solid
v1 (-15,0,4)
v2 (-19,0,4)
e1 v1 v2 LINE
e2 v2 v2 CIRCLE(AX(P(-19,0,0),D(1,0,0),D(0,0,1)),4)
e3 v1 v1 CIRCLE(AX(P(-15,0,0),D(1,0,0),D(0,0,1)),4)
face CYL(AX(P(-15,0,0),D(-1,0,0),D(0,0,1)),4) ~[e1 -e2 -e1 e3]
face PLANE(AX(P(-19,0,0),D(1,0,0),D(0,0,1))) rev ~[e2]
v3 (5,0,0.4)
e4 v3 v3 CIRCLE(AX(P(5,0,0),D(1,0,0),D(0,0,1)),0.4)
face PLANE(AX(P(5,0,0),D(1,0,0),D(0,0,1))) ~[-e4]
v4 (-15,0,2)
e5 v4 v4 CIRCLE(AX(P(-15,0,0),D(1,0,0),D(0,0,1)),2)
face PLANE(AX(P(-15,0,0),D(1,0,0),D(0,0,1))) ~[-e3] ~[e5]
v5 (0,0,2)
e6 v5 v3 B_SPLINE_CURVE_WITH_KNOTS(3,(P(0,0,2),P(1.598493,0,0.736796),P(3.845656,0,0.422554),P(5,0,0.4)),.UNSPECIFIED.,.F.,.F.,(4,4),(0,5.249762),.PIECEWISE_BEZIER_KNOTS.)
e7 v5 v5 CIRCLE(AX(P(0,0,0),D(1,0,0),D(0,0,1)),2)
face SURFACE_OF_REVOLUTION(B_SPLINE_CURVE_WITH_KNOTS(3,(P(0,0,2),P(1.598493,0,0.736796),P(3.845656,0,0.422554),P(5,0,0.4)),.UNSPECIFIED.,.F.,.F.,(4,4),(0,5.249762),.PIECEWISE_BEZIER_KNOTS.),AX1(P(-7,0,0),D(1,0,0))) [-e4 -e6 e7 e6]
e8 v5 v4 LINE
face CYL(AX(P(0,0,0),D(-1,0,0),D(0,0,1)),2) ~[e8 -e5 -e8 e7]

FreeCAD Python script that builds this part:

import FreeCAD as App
import Part
import Sketcher

V = App.Vector

doc = App.newDocument("Part")
params = doc.addObject("Spreadsheet::Sheet", "Params")
for row, (alias, value) in enumerate([
    ("sketch1_width", "15 mm"),
    ("sketch1_width2", "4 mm"),
    ("revolution_angle", "360 deg"),
], start=1):
    params.set(f"A{row}", alias)
    params.set(f"B{row}", "=" + value)
    params.setAlias(f"B{row}", alias)

body = doc.addObject("PartDesign::Body", "Body")

# Sketch on XZ plane
sketch1 = body.newObject("Sketcher::SketchObject", "Sketch")
sketch1.AttachmentSupport = (doc.getObject("XZ_Plane"), [""])
sketch1.MapMode = "FlatFace"
sketch1.addGeometry(Part.LineSegment(V(0, 2, 0), V(-15, 2, 0)), False)
sketch1.addGeometry(Part.LineSegment(V(-15, 2, 0), V(-15, 4, 0)), False)
sketch1.addGeometry(Part.LineSegment(V(-15, 4, 0), V(-19, 4, 0)), False)
sketch1.addGeometry(Part.LineSegment(V(-19, 4, 0), V(-19, 0, 0)), False)
sketch1.addGeometry(Part.LineSegment(V(-19, 0, 0), V(5, 0, 0)), False)
sketch1.addGeometry(Part.LineSegment(V(5, 0, 0), V(5, 0.4, 0)), False)
sketch1.addGeometry(Part.BSplineCurve([V(0, 2, 0), V(1.598493, 0.736796, 0), V(3.845656, 0.422554, 0), V(5, 0.4, 0)], [4, 4], [0, 5.249762], False, 3, [1, 1, 1, 1], False), False)
sketch1.addConstraint(Sketcher.Constraint("Block", 6))
sketch1.addConstraint(Sketcher.Constraint("Coincident", 0, 2, 1, 1))
sketch1.addConstraint(Sketcher.Constraint("Coincident", 1, 2, 2, 1))
sketch1.addConstraint(Sketcher.Constraint("Coincident", 2, 2, 3, 1))
sketch1.addConstraint(Sketcher.Constraint("Coincident", 3, 2, 4, 1))
sketch1.addConstraint(Sketcher.Constraint("Coincident", 4, 2, 5, 1))
sketch1.addConstraint(Sketcher.Constraint("Coincident", 5, 2, 6, 2))
sketch1.addConstraint(Sketcher.Constraint("Coincident", 6, 1, 0, 1))
sketch1.addConstraint(Sketcher.Constraint("Horizontal", 0))
sketch1.addConstraint(Sketcher.Constraint("Vertical", 1))
sketch1.addConstraint(Sketcher.Constraint("Horizontal", 2))
sketch1.addConstraint(Sketcher.Constraint("Vertical", 3))
sketch1.addConstraint(Sketcher.Constraint("Horizontal", 4))
sketch1.addConstraint(Sketcher.Constraint("Vertical", 5))
sketch1.addConstraint(Sketcher.Constraint("PointOnObject", 3, 2, -1))
sketch1.addConstraint(Sketcher.Constraint("Equal", 2, 3))
sketch1.addConstraint(Sketcher.Constraint("DistanceX", 0, 2, 0, 1, 15.0))
sketch1.addConstraint(Sketcher.Constraint("DistanceX", 2, 2, 2, 1, 4.0))
sketch1.setExpression("Constraints[16]", "Params.sketch1_width")
sketch1.setExpression("Constraints[17]", "Params.sketch1_width2")
revolution = body.newObject("PartDesign::Revolution", "Revolution")
revolution.Profile = sketch1
revolution.ReferenceAxis = (sketch1, ["H_Axis"])
revolution.setExpression("Angle", "Params.revolution_angle")

doc.recompute()
